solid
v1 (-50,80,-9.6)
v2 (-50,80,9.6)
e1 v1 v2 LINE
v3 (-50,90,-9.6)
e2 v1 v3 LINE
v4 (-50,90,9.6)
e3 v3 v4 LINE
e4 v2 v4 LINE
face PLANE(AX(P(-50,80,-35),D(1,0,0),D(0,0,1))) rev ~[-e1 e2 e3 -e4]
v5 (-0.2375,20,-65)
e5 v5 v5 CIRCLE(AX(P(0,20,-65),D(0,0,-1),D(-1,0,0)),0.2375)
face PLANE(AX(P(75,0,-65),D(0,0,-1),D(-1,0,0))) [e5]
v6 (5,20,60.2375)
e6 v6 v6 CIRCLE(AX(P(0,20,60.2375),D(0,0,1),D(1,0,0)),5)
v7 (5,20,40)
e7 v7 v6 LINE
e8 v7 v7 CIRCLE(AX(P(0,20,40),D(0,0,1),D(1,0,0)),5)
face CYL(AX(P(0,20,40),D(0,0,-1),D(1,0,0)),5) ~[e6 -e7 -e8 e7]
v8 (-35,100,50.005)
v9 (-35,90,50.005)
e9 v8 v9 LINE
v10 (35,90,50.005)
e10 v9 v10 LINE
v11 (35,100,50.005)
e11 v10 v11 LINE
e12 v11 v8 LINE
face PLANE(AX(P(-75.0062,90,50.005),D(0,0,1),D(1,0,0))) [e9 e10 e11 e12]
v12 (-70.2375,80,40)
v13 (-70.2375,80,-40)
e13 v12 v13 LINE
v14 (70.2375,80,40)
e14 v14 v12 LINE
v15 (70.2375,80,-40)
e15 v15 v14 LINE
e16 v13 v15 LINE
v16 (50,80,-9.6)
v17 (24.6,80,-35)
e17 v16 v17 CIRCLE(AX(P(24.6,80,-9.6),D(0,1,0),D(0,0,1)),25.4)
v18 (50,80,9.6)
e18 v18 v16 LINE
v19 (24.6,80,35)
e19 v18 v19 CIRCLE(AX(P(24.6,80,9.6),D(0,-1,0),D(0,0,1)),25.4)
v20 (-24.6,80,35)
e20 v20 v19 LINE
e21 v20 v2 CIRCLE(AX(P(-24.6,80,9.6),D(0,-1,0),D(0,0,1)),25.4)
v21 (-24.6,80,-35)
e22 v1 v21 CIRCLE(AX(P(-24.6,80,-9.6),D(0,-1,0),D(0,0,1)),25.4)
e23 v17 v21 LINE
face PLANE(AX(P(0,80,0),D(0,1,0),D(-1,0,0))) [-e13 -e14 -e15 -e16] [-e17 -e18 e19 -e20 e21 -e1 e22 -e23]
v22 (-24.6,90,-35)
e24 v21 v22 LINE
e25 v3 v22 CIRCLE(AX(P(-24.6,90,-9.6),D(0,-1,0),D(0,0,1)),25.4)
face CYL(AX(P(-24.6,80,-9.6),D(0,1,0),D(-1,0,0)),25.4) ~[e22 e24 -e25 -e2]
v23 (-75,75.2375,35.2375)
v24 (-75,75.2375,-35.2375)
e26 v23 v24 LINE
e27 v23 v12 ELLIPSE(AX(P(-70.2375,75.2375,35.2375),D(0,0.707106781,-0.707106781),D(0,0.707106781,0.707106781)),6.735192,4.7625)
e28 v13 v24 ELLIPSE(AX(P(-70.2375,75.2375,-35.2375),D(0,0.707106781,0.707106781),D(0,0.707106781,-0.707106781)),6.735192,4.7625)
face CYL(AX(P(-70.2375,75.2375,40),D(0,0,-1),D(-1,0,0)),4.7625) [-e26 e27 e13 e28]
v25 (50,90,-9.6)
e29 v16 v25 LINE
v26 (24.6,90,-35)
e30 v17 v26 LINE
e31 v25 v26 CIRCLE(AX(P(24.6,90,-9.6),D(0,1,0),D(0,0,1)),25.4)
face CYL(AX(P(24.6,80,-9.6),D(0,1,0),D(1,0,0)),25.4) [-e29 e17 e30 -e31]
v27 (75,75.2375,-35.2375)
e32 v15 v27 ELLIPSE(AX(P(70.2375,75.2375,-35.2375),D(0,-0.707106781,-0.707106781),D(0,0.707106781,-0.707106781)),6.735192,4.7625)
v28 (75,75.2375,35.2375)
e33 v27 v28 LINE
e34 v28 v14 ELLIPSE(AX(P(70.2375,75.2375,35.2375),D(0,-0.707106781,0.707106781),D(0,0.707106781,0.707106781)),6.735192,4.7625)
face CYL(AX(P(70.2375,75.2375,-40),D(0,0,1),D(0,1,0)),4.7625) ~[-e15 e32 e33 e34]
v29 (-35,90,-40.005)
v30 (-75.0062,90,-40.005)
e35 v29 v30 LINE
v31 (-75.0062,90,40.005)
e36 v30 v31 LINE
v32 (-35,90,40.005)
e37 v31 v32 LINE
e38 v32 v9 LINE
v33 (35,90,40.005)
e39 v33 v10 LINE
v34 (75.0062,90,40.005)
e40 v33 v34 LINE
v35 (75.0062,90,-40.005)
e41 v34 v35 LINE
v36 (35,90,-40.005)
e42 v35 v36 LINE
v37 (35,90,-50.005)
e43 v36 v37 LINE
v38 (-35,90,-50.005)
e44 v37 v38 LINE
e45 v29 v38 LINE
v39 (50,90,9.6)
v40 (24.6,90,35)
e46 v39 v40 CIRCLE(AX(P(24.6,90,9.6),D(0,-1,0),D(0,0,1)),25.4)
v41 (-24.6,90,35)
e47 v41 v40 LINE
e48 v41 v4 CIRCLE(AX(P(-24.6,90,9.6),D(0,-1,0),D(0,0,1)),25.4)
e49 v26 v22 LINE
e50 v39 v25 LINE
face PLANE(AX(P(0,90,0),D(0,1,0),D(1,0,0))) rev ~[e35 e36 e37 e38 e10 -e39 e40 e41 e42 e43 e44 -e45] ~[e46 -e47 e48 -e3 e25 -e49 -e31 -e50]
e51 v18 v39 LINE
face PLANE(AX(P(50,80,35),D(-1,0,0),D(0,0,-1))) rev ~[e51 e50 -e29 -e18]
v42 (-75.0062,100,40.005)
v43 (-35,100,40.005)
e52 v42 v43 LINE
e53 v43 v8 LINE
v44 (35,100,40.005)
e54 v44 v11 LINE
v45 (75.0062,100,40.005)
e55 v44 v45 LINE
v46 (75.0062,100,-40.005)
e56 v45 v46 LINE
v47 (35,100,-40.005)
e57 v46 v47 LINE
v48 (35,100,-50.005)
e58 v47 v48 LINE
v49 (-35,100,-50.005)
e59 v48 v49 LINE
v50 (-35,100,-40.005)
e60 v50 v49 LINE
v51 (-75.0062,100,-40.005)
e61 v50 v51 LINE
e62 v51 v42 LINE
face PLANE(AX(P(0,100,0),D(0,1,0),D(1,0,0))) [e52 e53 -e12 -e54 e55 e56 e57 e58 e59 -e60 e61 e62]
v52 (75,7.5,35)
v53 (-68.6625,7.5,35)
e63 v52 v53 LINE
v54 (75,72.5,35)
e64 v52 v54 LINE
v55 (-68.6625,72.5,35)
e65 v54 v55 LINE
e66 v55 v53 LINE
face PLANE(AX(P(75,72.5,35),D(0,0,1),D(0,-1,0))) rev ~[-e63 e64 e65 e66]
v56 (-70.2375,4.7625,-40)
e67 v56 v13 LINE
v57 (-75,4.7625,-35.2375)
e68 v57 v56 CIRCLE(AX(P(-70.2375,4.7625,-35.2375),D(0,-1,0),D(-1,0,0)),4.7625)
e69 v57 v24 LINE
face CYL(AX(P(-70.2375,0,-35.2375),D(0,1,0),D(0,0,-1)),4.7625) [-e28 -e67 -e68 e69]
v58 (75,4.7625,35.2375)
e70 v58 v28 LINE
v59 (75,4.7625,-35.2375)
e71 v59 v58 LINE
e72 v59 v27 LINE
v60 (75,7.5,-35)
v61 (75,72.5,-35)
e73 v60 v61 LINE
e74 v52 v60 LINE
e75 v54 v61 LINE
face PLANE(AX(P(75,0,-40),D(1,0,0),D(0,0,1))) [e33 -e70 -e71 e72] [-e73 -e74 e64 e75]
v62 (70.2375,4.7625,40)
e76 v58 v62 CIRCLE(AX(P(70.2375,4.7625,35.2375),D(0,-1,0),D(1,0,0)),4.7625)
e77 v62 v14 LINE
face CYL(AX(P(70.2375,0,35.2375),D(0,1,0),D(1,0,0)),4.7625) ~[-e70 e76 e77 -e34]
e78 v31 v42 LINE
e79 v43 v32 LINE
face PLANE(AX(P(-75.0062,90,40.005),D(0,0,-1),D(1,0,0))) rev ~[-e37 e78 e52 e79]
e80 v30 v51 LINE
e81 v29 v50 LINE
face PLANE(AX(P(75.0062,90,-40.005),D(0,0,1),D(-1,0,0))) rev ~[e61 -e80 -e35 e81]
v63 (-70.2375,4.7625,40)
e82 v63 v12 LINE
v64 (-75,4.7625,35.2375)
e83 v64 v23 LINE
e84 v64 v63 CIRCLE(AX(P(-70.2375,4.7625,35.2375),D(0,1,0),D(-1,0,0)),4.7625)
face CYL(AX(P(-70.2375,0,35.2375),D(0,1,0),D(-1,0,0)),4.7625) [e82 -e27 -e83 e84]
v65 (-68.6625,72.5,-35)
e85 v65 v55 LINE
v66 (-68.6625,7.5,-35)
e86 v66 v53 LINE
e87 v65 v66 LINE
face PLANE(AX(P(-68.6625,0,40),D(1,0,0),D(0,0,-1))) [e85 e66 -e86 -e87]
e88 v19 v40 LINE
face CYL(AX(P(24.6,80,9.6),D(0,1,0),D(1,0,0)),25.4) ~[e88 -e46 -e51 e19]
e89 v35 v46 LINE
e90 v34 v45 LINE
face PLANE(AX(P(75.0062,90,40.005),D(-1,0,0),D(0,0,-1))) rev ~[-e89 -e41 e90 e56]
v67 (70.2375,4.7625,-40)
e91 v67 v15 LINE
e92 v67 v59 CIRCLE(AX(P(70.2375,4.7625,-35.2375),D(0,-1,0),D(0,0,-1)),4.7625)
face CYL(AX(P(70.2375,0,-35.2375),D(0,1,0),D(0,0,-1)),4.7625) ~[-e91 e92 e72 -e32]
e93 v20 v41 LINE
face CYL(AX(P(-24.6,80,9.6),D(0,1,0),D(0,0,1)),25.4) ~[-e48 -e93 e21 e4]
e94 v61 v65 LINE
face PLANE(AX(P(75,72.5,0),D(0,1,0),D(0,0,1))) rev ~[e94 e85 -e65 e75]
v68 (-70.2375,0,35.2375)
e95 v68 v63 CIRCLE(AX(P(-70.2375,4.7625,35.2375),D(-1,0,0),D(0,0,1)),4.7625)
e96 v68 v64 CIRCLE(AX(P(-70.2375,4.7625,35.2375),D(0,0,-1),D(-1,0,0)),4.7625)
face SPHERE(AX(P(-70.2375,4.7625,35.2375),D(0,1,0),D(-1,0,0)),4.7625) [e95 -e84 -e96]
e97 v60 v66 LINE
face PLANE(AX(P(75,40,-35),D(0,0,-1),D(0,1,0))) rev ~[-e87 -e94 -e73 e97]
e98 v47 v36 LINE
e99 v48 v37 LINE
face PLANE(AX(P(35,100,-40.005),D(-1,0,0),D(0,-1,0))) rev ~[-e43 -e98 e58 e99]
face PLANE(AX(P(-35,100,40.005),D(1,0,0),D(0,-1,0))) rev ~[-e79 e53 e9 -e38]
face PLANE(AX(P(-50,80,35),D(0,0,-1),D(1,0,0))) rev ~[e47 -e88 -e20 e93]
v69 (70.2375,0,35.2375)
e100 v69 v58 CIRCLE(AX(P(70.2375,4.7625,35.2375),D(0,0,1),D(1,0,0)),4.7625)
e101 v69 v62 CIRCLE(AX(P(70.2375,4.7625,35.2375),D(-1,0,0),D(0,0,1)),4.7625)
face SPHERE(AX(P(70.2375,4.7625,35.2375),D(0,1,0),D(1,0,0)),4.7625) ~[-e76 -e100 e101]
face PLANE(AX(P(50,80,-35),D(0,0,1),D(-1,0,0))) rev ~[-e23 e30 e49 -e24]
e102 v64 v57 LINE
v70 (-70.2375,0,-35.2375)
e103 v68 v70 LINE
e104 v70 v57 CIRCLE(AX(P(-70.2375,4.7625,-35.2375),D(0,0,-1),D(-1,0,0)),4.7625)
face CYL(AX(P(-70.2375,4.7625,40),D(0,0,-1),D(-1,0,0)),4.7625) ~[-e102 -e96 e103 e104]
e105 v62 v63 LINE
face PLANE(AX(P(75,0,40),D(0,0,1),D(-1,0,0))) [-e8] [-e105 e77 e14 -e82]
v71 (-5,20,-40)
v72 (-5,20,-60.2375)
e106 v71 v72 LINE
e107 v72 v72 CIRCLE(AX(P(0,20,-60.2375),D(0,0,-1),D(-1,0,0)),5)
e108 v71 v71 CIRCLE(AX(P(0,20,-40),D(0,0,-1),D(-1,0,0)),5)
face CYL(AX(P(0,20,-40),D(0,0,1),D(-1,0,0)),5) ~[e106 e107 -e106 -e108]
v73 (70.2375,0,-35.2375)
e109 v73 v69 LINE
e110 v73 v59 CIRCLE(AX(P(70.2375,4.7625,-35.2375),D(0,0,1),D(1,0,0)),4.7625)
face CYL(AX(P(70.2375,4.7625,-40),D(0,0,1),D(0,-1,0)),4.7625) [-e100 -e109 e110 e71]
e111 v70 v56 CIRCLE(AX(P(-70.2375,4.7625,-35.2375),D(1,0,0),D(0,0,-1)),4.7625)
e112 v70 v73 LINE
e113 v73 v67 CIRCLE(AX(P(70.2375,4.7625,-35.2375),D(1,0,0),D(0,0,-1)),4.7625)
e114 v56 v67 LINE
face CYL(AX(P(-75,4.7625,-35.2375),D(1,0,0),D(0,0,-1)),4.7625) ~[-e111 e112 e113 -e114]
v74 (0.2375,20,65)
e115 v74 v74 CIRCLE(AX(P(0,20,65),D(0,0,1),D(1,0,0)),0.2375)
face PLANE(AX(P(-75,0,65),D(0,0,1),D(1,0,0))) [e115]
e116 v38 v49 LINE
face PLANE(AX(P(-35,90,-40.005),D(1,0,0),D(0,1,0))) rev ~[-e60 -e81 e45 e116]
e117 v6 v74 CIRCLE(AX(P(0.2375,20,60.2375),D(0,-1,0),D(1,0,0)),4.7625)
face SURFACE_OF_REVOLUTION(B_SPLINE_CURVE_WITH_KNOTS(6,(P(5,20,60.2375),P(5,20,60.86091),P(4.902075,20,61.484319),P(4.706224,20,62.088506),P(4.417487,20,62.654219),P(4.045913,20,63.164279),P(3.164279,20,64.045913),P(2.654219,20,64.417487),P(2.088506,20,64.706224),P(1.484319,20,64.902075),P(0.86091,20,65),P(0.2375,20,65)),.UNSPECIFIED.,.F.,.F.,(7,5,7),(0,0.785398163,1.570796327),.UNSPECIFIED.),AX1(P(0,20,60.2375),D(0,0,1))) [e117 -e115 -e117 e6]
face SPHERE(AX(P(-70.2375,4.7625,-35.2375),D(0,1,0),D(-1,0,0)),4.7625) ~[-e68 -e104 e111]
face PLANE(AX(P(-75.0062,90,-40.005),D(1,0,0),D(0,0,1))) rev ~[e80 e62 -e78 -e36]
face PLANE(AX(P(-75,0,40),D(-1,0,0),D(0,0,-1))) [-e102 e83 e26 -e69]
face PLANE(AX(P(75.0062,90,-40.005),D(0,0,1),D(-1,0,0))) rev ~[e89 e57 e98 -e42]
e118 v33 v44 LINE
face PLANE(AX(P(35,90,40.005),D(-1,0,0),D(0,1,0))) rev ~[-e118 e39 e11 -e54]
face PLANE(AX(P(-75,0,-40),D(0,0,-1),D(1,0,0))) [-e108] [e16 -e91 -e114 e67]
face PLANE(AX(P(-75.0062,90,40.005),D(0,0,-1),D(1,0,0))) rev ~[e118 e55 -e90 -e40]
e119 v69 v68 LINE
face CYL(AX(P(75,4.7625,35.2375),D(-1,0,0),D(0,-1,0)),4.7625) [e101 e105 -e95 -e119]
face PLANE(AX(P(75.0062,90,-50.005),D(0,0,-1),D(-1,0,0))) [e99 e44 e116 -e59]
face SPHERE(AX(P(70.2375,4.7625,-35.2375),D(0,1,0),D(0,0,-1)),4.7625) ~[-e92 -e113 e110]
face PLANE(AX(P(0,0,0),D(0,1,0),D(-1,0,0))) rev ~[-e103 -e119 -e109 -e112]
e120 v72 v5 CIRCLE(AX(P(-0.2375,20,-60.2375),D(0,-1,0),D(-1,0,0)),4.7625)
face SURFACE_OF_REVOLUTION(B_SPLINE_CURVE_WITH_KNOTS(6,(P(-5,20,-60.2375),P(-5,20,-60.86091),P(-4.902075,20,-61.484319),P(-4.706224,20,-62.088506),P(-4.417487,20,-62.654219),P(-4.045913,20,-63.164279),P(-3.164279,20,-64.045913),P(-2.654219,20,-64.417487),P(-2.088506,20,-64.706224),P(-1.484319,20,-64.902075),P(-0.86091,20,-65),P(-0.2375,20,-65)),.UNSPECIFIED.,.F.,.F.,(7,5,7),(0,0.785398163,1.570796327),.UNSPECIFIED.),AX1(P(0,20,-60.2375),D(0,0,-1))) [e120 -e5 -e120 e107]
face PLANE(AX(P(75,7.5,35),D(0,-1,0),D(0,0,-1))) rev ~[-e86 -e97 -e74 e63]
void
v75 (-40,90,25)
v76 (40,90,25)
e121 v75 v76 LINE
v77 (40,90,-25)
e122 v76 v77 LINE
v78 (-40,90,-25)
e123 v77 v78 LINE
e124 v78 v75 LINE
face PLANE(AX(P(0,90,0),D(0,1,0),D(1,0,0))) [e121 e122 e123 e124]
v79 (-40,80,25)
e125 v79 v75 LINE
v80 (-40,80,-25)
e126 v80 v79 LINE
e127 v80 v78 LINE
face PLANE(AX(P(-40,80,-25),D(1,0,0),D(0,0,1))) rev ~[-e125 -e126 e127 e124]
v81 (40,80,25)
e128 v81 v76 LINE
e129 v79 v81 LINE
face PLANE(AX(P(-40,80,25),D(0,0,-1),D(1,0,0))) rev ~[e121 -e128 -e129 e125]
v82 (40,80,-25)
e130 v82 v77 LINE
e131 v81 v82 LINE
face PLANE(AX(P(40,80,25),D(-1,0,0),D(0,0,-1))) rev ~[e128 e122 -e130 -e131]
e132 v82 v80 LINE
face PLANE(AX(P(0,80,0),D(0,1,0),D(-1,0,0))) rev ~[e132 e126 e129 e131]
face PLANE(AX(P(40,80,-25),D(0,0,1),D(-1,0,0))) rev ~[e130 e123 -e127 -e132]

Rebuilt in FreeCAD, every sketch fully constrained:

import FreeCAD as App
import Part
import Sketcher
from FreeCAD import Vector
Q = App.Units.Quantity


def edges_at(feature, points):
    """Names of the edges that pass closest to the given points."""
    edges = feature.Shape.Edges
    near = lambda p: min(range(len(edges)), key=lambda i: edges[i].distToShape(Part.Vertex(*p))[0])
    return sorted({f"Edge{near(p) + 1}" for p in points})


def add_polygon(sketch, points):
    """Adds a closed chain of lines whose ends are joined by coincident constraints."""
    first, n = sketch.GeometryCount, len(points)
    for a, b in zip(points, points[1:] + points[:1]):
        sketch.addGeometry(Part.LineSegment(App.Vector(*a, 0), App.Vector(*b, 0)), False)
    for i in range(n):
        sketch.addConstraint(Sketcher.Constraint("Coincident", first + i, 2, first + (i + 1) % n, 1))

doc = App.newDocument("Part")
body = doc.addObject("PartDesign::Body", "Body")

sketch1 = body.newObject("Sketcher::SketchObject", "Sketch")
sketch1.AttachmentSupport = (doc.getObject("XZ_Plane"), [""])
sketch1.MapMode = "FlatFace"
add_polygon(sketch1, [(75, -40), (-75, -40), (-75, 40), (75, 40)])
sketch1.addConstraint(Sketcher.Constraint("Horizontal", 0))
sketch1.addConstraint(Sketcher.Constraint("Vertical", 1))
sketch1.addConstraint(Sketcher.Constraint("Horizontal", 2))
sketch1.addConstraint(Sketcher.Constraint("Vertical", 3))
sketch1.addConstraint(Sketcher.Constraint("Symmetric", 0, 2, 2, 2, -1, 1))
sketch1.addConstraint(Sketcher.Constraint("DistanceX", 0, 2, 0, 1, Q("5.9055 in")))
sketch1.addConstraint(Sketcher.Constraint("DistanceY", 1, 1, 1, 2, Q("3.1496 in")))
pad1 = body.newObject("PartDesign::Pad", "Pad")
pad1.Profile = sketch1
pad1.Length = Q("3.1496063 in")
pad1.Reversed = True

sketch2 = body.newObject("Sketcher::SketchObject", "Sketch001")
sketch2.AttachmentSupport = (doc.getObject("YZ_Plane"), [""])
sketch2.MapMode = "FlatFace"
sketch2.AttachmentOffset = App.Placement(Vector(0, 0, 75), App.Rotation())
add_polygon(sketch2, [(72, 35), (8, 35), (8, -35), (72, -35)])
sketch2.addConstraint(Sketcher.Constraint("Horizontal", 0))
sketch2.addConstraint(Sketcher.Constraint("Vertical", 1))
sketch2.addConstraint(Sketcher.Constraint("Horizontal", 2))
sketch2.addConstraint(Sketcher.Constraint("Vertical", 3))
sketch2.addConstraint(Sketcher.Constraint("DistanceY", 1, 2, 1, 1, Q("2.7559 in")))
sketch2.addConstraint(Sketcher.Constraint("DistanceX", 0, 2, 0, 1, Q("65 mm")))
sketch2.addConstraint(Sketcher.Constraint("DistanceX", -1, 1, 0, 2, Q("7.5 mm")))
sketch2.addConstraint(Sketcher.Constraint("DistanceY", -1, 1, 0, 2, Q("35 mm")))
pocket1 = body.newObject("PartDesign::Pocket", "Pocket")
pocket1.Profile = sketch2
pocket1.Length = Q("5.6560039 in")

sketch3 = body.newObject("Sketcher::SketchObject", "Sketch002")
sketch3.AttachmentSupport = (doc.getObject("XY_Plane"), [""])
sketch3.MapMode = "FlatFace"
sketch3.AttachmentOffset = App.Placement(Vector(0, 0, 1.5748031 * 25.4), App.Rotation())
sketch3.addGeometry(Part.Circle(Vector(0, 20, 0), Vector(0, 0, 1), 5), False)
sketch3.addConstraint(Sketcher.Constraint("PointOnObject", 0, 3, -2))
sketch3.addConstraint(Sketcher.Constraint("Diameter", 0, Q("0.3937 in")))
sketch3.addConstraint(Sketcher.Constraint("DistanceY", -1, 1, 0, 3, Q("0.7874 in")))
pad2 = body.newObject("PartDesign::Pad", "Pad001")
pad2.Profile = sketch3
pad2.Length = 25

sketch4 = body.newObject("Sketcher::SketchObject", "Sketch003")
sketch4.AttachmentSupport = (doc.getObject("XY_Plane"), [""])
sketch4.MapMode = "FlatFace"
sketch4.AttachmentOffset = App.Placement(Vector(0, 0, -1.5748031 * 25.4), App.Rotation())
sketch4.addGeometry(Part.Circle(Vector(0, 20, 0), Vector(0, 0, 1), 5), False)
sketch4.addConstraint(Sketcher.Constraint("PointOnObject", 0, 3, -2))
sketch4.addConstraint(Sketcher.Constraint("Diameter", 0, Q("0.3937 in")))
sketch4.addConstraint(Sketcher.Constraint("DistanceY", -1, 1, 0, 3, Q("0.7874 in")))
pad3 = body.newObject("PartDesign::Pad", "Pad002")
pad3.Profile = sketch4
pad3.Length = 25
pad3.Reversed = True
doc.recompute()

fillet = body.newObject("PartDesign::Fillet", "Fillet")
fillet.Base = (pad3, edges_at(pad3, [(-5, 20, 65)]))
fillet.Radius = Q("0.1875 in")
doc.recompute()

fillet2 = body.newObject("PartDesign::Fillet", "Fillet001")
fillet2.Base = (fillet, edges_at(fillet, [(5, 20, -65)]))
fillet2.Radius = Q("0.1875 in")
doc.recompute()

fillet3 = body.newObject("PartDesign::Fillet", "Fillet002")
fillet3.Base = (fillet2, edges_at(fillet2, [
    (-75, 40, -40),
    (-75, 40, 40),
    (75, 40, 40),
    (75, 40, -40),
    (-75, 80, 0),
    (75, 80, 0),
    (-75, 0, 0),
    (0, 0, -40),
    (75, 0, 0),
    (0, 0, 40),
]))
fillet3.Radius = Q("0.1875 in")

sketch5 = body.newObject("Sketcher::SketchObject", "Sketch004")
sketch5.AttachmentSupport = (doc.getObject("XZ_Plane"), [""])
sketch5.MapMode = "FlatFace"
sketch5.AttachmentOffset = App.Placement(Vector(0, 0, -3.1496063 * 25.4), App.Rotation())
add_polygon(sketch5, [(50, 35), (50, -35), (-50, -35), (-50, 35)])
add_polygon(sketch5, [(-40, -25), (40, -25), (40, 25), (-40, 25)])
sketch5.addConstraint(Sketcher.Constraint("Vertical", 0))
sketch5.addConstraint(Sketcher.Constraint("Horizontal", 1))
sketch5.addConstraint(Sketcher.Constraint("Vertical", 2))
sketch5.addConstraint(Sketcher.Constraint("Horizontal", 3))
sketch5.addConstraint(Sketcher.Constraint("Horizontal", 4))
sketch5.addConstraint(Sketcher.Constraint("Vertical", 5))
sketch5.addConstraint(Sketcher.Constraint("Horizontal", 6))
sketch5.addConstraint(Sketcher.Constraint("Vertical", 7))
sketch5.addConstraint(Sketcher.Constraint("Symmetric", 0, 2, 2, 2, -1, 1))
sketch5.addConstraint(Sketcher.Constraint("Symmetric", 4, 2, 6, 2, -1, 1))
sketch5.addConstraint(Sketcher.Constraint("DistanceX", 1, 2, 1, 1, Q("3.937 in")))
sketch5.addConstraint(Sketcher.Constraint("DistanceY", 0, 2, 0, 1, Q("2.7559 in")))
sketch5.addConstraint(Sketcher.Constraint("DistanceX", 4, 2, 0, 2, Q("0.3937 in")))
sketch5.addConstraint(Sketcher.Constraint("DistanceY", 0, 2, 4, 2, Q("0.3937 in")))
pad4 = body.newObject("PartDesign::Pad", "Pad003")
pad4.Profile = sketch5
pad4.Length = Q("0.3937008 in")
pad4.Reversed = True

sketch6 = body.newObject("Sketcher::SketchObject", "Sketch005")
sketch6.AttachmentSupport = (doc.getObject("XZ_Plane"), [""])
sketch6.MapMode = "FlatFace"
sketch6.AttachmentOffset = App.Placement(Vector(0, 0, -3.5433071 * 25.4), App.Rotation())
add_polygon(sketch6, [(75, 40), (75, -40), (-75, -40), (-75, 40)])
sketch6.addConstraint(Sketcher.Constraint("Vertical", 0))
sketch6.addConstraint(Sketcher.Constraint("Horizontal", 1))
sketch6.addConstraint(Sketcher.Constraint("Vertical", 2))
sketch6.addConstraint(Sketcher.Constraint("Horizontal", 3))
sketch6.addConstraint(Sketcher.Constraint("Symmetric", 0, 2, 2, 2, -1, 1))
sketch6.addConstraint(Sketcher.Constraint("DistanceY", 0, 2, 0, 1, Q("3.15 in")))
sketch6.addConstraint(Sketcher.Constraint("DistanceX", 1, 2, 1, 1, Q("5.906 in")))
pad5 = body.newObject("PartDesign::Pad", "Pad004")
pad5.Profile = sketch6
pad5.Length = Q("0.3937008 in")
pad5.Reversed = True

sketch7 = body.newObject("Sketcher::SketchObject", "Sketch006")
sketch7.AttachmentSupport = (doc.getObject("XY_Plane"), [""])
sketch7.MapMode = "FlatFace"
sketch7.AttachmentOffset = App.Placement(Vector(0, 0, 1.575 * 25.4), App.Rotation())
add_polygon(sketch7, [(-35, 100), (-35, 90), (35, 90), (35, 100)])
sketch7.addConstraint(Sketcher.Constraint("Vertical", 0))
sketch7.addConstraint(Sketcher.Constraint("Horizontal", 1))
sketch7.addConstraint(Sketcher.Constraint("Vertical", 2))
sketch7.addConstraint(Sketcher.Constraint("Horizontal", 3))
sketch7.addConstraint(Sketcher.Constraint("DistanceX", 1, 1, 1, 2, Q("2.7559 in")))
sketch7.addConstraint(Sketcher.Constraint("DistanceY", 0, 2, 0, 1, Q("0.3937 in")))
sketch7.addConstraint(Sketcher.Constraint("DistanceY", -1, 1, 2, 2, Q("3.937 in")))
sketch7.addConstraint(Sketcher.Constraint("DistanceX", 0, 2, -1, 1, Q("35 mm")))
pad6 = body.newObject("PartDesign::Pad", "Pad005")
pad6.Profile = sketch7
pad6.Length = Q("0.3937008 in")

sketch8 = body.newObject("Sketcher::SketchObject", "Sketch007")
sketch8.AttachmentSupport = (doc.getObject("XY_Plane"), [""])
sketch8.MapMode = "FlatFace"
sketch8.AttachmentOffset = App.Placement(Vector(0, 0, -1.575 * 25.4), App.Rotation())
add_polygon(sketch8, [(35, 100), (35, 90), (-35, 90), (-35, 100)])
sketch8.addConstraint(Sketcher.Constraint("Vertical", 0))
sketch8.addConstraint(Sketcher.Constraint("Horizontal", 1))
sketch8.addConstraint(Sketcher.Constraint("Vertical", 2))
sketch8.addConstraint(Sketcher.Constraint("Horizontal", 3))
sketch8.addConstraint(Sketcher.Constraint("DistanceX", 1, 2, 1, 1, Q("2.7559 in")))
sketch8.addConstraint(Sketcher.Constraint("DistanceY", 0, 2, 0, 1, Q("0.3937 in")))
sketch8.addConstraint(Sketcher.Constraint("DistanceY", -1, 1, 2, 2, Q("3.937 in")))
sketch8.addConstraint(Sketcher.Constraint("DistanceX", -1, 1, 0, 2, Q("35 mm")))
pad7 = body.newObject("PartDesign::Pad", "Pad006")
pad7.Profile = sketch8
pad7.Length = Q("0.3937008 in")
pad7.Reversed = True
doc.recompute()

fillet4 = body.newObject("PartDesign::Fillet", "Fillet003")
fillet4.Base = (pad7, edges_at(pad7, [
    (50, 85, -35),
    (50, 85, 35),
    (-50, 85, 35),
    (-50, 85, -35),
]))
fillet4.Radius = Q("1 in")

doc.recompute()
